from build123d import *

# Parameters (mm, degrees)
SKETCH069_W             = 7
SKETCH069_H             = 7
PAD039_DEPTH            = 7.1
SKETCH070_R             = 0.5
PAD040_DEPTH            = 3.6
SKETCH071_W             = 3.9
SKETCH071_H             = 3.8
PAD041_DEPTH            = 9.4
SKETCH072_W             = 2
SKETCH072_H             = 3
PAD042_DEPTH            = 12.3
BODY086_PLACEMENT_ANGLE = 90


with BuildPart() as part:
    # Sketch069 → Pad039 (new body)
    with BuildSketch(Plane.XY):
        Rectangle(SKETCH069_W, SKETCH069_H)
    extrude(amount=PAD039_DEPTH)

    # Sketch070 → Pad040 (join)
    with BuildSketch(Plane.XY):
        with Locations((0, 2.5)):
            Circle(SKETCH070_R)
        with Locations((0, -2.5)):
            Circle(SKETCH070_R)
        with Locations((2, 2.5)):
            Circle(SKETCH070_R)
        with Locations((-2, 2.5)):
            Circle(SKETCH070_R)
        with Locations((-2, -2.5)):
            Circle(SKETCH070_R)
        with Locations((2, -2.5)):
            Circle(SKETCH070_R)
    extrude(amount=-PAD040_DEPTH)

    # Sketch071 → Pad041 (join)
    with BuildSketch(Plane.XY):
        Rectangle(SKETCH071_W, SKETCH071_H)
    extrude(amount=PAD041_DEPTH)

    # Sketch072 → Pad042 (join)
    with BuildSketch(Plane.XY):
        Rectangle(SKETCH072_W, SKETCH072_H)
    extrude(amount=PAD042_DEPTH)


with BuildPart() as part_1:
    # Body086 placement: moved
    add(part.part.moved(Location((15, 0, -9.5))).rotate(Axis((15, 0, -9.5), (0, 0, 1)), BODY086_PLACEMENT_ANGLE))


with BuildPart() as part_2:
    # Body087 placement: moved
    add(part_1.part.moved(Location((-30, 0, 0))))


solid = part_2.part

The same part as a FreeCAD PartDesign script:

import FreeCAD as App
import Part
import Sketcher

V = App.Vector


def add_polygon(sketch, points):
    """Adds a closed chain of lines whose ends are joined by coincident constraints."""
    first, n = sketch.GeometryCount, len(points)
    for a, b in zip(points, points[1:] + points[:1]):
        sketch.addGeometry(Part.LineSegment(App.Vector(*a, 0), App.Vector(*b, 0)), False)
    for i in range(n):
        sketch.addConstraint(Sketcher.Constraint("Coincident", first + i, 2, first + (i + 1) % n, 1))

doc = App.newDocument("Part")
body = doc.addObject("PartDesign::Body", "Body")

# Sketch on XY plane
sketch1 = body.newObject("Sketcher::SketchObject", "Sketch")
sketch1.AttachmentSupport = (doc.getObject("XY_Plane"), [""])
sketch1.MapMode = "FlatFace"
add_polygon(sketch1, [(-3.5, 3.5), (-3.5, -3.5), (3.5, -3.5), (3.5, 3.5)])  # lines 0-3
sketch1.addConstraint([
    Sketcher.Constraint("Vertical", 0),
    Sketcher.Constraint("Horizontal", 1),
    Sketcher.Constraint("Vertical", 2),
    Sketcher.Constraint("Horizontal", 3),
    Sketcher.Constraint("Symmetric", 0, 2, 2, 2, -1, 1),
    Sketcher.Constraint("Equal", 3, 0),
    Sketcher.Constraint("DistanceX", 1, 1, 1, 2, 7.0),
])
pad1 = body.newObject("PartDesign::Pad", "Pad")
pad1.Profile = sketch1
pad1.Length = 7.1

# Sketch on XY plane
sketch2 = body.newObject("Sketcher::SketchObject", "Sketch001")
sketch2.AttachmentSupport = (doc.getObject("XY_Plane"), [""])
sketch2.MapMode = "FlatFace"
sketch2.addGeometry([
    Part.Circle(V(0, 2.5, 0), V(0, 0, 1), 0.5),  # 0
    Part.Circle(V(0, -2.5, 0), V(0, 0, 1), 0.5),  # 1
    Part.Circle(V(2, 2.5, 0), V(0, 0, 1), 0.5),  # 2
    Part.Circle(V(-2, 2.5, 0), V(0, 0, 1), 0.5),  # 3
    Part.Circle(V(-2, -2.5, 0), V(0, 0, 1), 0.5),  # 4
    Part.Circle(V(2, -2.5, 0), V(0, 0, 1), 0.5),  # 5
], False)
sketch2.addConstraint([
    Sketcher.Constraint("Equal", 0, 1),
    Sketcher.Constraint("Equal", 1, 2),
    Sketcher.Constraint("Equal", 2, 3),
    Sketcher.Constraint("Equal", 3, 4),
    Sketcher.Constraint("Equal", 4, 5),
    Sketcher.Constraint("Symmetric", 0, 3, 1, 3, -1, 1),
    Sketcher.Constraint("Symmetric", 2, 3, 4, 3, -1, 1),
    Sketcher.Constraint("Symmetric", 3, 3, 5, 3, -1, 1),
    Sketcher.Constraint("Symmetric", 2, 3, 3, 3, -2),
    Sketcher.Constraint("PointOnObject", 0, 3, -2),
    Sketcher.Constraint("Horizontal", 0, 3, 2, 3),
    Sketcher.Constraint("Diameter", 0, 1.0),
    Sketcher.Constraint("DistanceX", -1, 1, 2, 3, 2.0),
    Sketcher.Constraint("DistanceY", 1, 3, 0, 3, 5.0),
])
pad2 = body.newObject("PartDesign::Pad", "Pad001")
pad2.Profile = sketch2
pad2.Length = 3.6
pad2.Reversed = True

# Sketch on XY plane
sketch3 = body.newObject("Sketcher::SketchObject", "Sketch002")
sketch3.AttachmentSupport = (doc.getObject("XY_Plane"), [""])
sketch3.MapMode = "FlatFace"
add_polygon(sketch3, [(-1.95, 1.9), (-1.95, -1.9), (1.95, -1.9), (1.95, 1.9)])  # lines 0-3
sketch3.addConstraint([
    Sketcher.Constraint("Vertical", 0),
    Sketcher.Constraint("Horizontal", 1),
    Sketcher.Constraint("Vertical", 2),
    Sketcher.Constraint("Horizontal", 3),
    Sketcher.Constraint("Symmetric", 0, 2, 2, 2, -1, 1),
    Sketcher.Constraint("DistanceX", 1, 1, 1, 2, 3.9),
    Sketcher.Constraint("DistanceY", 0, 2, 0, 1, 3.8),
])
pad3 = body.newObject("PartDesign::Pad", "Pad002")
pad3.Profile = sketch3
pad3.Length = 9.4

# Sketch on XY plane
sketch4 = body.newObject("Sketcher::SketchObject", "Sketch003")
sketch4.AttachmentSupport = (doc.getObject("XY_Plane"), [""])
sketch4.MapMode = "FlatFace"
add_polygon(sketch4, [(-1, 1.5), (-1, -1.5), (1, -1.5), (1, 1.5)])  # lines 0-3
sketch4.addConstraint([
    Sketcher.Constraint("Vertical", 0),
    Sketcher.Constraint("Horizontal", 1),
    Sketcher.Constraint("Vertical", 2),
    Sketcher.Constraint("Horizontal", 3),
    Sketcher.Constraint("Symmetric", 0, 2, 2, 2, -1, 1),
    Sketcher.Constraint("DistanceX", 1, 1, 1, 2, 2.0),
    Sketcher.Constraint("DistanceY", 0, 2, 0, 1, 3.0),
])
pad4 = body.newObject("PartDesign::Pad", "Pad003")
pad4.Profile = sketch4
pad4.Length = 12.3
body2 = doc.addObject("PartDesign::Body", "Body001")
doc.recompute()

body.Placement = App.Placement(V(15, 0, -9.5), App.Rotation(V(0, 0, 1), 90))
boolean = body2.newObject("PartDesign::Boolean", "Boolean")
boolean.Type = "Fuse"
boolean.addObjects([body])
body3 = doc.addObject("PartDesign::Body", "Body002")
doc.recompute()

body2.Placement = App.Placement(V(-30, 0, 0), App.Rotation(V(0, 0, 1), 0))
boolean2 = body3.newObject("PartDesign::Boolean", "Boolean001")
boolean2.Type = "Fuse"
boolean2.addObjects([body2])

doc.recompute()
